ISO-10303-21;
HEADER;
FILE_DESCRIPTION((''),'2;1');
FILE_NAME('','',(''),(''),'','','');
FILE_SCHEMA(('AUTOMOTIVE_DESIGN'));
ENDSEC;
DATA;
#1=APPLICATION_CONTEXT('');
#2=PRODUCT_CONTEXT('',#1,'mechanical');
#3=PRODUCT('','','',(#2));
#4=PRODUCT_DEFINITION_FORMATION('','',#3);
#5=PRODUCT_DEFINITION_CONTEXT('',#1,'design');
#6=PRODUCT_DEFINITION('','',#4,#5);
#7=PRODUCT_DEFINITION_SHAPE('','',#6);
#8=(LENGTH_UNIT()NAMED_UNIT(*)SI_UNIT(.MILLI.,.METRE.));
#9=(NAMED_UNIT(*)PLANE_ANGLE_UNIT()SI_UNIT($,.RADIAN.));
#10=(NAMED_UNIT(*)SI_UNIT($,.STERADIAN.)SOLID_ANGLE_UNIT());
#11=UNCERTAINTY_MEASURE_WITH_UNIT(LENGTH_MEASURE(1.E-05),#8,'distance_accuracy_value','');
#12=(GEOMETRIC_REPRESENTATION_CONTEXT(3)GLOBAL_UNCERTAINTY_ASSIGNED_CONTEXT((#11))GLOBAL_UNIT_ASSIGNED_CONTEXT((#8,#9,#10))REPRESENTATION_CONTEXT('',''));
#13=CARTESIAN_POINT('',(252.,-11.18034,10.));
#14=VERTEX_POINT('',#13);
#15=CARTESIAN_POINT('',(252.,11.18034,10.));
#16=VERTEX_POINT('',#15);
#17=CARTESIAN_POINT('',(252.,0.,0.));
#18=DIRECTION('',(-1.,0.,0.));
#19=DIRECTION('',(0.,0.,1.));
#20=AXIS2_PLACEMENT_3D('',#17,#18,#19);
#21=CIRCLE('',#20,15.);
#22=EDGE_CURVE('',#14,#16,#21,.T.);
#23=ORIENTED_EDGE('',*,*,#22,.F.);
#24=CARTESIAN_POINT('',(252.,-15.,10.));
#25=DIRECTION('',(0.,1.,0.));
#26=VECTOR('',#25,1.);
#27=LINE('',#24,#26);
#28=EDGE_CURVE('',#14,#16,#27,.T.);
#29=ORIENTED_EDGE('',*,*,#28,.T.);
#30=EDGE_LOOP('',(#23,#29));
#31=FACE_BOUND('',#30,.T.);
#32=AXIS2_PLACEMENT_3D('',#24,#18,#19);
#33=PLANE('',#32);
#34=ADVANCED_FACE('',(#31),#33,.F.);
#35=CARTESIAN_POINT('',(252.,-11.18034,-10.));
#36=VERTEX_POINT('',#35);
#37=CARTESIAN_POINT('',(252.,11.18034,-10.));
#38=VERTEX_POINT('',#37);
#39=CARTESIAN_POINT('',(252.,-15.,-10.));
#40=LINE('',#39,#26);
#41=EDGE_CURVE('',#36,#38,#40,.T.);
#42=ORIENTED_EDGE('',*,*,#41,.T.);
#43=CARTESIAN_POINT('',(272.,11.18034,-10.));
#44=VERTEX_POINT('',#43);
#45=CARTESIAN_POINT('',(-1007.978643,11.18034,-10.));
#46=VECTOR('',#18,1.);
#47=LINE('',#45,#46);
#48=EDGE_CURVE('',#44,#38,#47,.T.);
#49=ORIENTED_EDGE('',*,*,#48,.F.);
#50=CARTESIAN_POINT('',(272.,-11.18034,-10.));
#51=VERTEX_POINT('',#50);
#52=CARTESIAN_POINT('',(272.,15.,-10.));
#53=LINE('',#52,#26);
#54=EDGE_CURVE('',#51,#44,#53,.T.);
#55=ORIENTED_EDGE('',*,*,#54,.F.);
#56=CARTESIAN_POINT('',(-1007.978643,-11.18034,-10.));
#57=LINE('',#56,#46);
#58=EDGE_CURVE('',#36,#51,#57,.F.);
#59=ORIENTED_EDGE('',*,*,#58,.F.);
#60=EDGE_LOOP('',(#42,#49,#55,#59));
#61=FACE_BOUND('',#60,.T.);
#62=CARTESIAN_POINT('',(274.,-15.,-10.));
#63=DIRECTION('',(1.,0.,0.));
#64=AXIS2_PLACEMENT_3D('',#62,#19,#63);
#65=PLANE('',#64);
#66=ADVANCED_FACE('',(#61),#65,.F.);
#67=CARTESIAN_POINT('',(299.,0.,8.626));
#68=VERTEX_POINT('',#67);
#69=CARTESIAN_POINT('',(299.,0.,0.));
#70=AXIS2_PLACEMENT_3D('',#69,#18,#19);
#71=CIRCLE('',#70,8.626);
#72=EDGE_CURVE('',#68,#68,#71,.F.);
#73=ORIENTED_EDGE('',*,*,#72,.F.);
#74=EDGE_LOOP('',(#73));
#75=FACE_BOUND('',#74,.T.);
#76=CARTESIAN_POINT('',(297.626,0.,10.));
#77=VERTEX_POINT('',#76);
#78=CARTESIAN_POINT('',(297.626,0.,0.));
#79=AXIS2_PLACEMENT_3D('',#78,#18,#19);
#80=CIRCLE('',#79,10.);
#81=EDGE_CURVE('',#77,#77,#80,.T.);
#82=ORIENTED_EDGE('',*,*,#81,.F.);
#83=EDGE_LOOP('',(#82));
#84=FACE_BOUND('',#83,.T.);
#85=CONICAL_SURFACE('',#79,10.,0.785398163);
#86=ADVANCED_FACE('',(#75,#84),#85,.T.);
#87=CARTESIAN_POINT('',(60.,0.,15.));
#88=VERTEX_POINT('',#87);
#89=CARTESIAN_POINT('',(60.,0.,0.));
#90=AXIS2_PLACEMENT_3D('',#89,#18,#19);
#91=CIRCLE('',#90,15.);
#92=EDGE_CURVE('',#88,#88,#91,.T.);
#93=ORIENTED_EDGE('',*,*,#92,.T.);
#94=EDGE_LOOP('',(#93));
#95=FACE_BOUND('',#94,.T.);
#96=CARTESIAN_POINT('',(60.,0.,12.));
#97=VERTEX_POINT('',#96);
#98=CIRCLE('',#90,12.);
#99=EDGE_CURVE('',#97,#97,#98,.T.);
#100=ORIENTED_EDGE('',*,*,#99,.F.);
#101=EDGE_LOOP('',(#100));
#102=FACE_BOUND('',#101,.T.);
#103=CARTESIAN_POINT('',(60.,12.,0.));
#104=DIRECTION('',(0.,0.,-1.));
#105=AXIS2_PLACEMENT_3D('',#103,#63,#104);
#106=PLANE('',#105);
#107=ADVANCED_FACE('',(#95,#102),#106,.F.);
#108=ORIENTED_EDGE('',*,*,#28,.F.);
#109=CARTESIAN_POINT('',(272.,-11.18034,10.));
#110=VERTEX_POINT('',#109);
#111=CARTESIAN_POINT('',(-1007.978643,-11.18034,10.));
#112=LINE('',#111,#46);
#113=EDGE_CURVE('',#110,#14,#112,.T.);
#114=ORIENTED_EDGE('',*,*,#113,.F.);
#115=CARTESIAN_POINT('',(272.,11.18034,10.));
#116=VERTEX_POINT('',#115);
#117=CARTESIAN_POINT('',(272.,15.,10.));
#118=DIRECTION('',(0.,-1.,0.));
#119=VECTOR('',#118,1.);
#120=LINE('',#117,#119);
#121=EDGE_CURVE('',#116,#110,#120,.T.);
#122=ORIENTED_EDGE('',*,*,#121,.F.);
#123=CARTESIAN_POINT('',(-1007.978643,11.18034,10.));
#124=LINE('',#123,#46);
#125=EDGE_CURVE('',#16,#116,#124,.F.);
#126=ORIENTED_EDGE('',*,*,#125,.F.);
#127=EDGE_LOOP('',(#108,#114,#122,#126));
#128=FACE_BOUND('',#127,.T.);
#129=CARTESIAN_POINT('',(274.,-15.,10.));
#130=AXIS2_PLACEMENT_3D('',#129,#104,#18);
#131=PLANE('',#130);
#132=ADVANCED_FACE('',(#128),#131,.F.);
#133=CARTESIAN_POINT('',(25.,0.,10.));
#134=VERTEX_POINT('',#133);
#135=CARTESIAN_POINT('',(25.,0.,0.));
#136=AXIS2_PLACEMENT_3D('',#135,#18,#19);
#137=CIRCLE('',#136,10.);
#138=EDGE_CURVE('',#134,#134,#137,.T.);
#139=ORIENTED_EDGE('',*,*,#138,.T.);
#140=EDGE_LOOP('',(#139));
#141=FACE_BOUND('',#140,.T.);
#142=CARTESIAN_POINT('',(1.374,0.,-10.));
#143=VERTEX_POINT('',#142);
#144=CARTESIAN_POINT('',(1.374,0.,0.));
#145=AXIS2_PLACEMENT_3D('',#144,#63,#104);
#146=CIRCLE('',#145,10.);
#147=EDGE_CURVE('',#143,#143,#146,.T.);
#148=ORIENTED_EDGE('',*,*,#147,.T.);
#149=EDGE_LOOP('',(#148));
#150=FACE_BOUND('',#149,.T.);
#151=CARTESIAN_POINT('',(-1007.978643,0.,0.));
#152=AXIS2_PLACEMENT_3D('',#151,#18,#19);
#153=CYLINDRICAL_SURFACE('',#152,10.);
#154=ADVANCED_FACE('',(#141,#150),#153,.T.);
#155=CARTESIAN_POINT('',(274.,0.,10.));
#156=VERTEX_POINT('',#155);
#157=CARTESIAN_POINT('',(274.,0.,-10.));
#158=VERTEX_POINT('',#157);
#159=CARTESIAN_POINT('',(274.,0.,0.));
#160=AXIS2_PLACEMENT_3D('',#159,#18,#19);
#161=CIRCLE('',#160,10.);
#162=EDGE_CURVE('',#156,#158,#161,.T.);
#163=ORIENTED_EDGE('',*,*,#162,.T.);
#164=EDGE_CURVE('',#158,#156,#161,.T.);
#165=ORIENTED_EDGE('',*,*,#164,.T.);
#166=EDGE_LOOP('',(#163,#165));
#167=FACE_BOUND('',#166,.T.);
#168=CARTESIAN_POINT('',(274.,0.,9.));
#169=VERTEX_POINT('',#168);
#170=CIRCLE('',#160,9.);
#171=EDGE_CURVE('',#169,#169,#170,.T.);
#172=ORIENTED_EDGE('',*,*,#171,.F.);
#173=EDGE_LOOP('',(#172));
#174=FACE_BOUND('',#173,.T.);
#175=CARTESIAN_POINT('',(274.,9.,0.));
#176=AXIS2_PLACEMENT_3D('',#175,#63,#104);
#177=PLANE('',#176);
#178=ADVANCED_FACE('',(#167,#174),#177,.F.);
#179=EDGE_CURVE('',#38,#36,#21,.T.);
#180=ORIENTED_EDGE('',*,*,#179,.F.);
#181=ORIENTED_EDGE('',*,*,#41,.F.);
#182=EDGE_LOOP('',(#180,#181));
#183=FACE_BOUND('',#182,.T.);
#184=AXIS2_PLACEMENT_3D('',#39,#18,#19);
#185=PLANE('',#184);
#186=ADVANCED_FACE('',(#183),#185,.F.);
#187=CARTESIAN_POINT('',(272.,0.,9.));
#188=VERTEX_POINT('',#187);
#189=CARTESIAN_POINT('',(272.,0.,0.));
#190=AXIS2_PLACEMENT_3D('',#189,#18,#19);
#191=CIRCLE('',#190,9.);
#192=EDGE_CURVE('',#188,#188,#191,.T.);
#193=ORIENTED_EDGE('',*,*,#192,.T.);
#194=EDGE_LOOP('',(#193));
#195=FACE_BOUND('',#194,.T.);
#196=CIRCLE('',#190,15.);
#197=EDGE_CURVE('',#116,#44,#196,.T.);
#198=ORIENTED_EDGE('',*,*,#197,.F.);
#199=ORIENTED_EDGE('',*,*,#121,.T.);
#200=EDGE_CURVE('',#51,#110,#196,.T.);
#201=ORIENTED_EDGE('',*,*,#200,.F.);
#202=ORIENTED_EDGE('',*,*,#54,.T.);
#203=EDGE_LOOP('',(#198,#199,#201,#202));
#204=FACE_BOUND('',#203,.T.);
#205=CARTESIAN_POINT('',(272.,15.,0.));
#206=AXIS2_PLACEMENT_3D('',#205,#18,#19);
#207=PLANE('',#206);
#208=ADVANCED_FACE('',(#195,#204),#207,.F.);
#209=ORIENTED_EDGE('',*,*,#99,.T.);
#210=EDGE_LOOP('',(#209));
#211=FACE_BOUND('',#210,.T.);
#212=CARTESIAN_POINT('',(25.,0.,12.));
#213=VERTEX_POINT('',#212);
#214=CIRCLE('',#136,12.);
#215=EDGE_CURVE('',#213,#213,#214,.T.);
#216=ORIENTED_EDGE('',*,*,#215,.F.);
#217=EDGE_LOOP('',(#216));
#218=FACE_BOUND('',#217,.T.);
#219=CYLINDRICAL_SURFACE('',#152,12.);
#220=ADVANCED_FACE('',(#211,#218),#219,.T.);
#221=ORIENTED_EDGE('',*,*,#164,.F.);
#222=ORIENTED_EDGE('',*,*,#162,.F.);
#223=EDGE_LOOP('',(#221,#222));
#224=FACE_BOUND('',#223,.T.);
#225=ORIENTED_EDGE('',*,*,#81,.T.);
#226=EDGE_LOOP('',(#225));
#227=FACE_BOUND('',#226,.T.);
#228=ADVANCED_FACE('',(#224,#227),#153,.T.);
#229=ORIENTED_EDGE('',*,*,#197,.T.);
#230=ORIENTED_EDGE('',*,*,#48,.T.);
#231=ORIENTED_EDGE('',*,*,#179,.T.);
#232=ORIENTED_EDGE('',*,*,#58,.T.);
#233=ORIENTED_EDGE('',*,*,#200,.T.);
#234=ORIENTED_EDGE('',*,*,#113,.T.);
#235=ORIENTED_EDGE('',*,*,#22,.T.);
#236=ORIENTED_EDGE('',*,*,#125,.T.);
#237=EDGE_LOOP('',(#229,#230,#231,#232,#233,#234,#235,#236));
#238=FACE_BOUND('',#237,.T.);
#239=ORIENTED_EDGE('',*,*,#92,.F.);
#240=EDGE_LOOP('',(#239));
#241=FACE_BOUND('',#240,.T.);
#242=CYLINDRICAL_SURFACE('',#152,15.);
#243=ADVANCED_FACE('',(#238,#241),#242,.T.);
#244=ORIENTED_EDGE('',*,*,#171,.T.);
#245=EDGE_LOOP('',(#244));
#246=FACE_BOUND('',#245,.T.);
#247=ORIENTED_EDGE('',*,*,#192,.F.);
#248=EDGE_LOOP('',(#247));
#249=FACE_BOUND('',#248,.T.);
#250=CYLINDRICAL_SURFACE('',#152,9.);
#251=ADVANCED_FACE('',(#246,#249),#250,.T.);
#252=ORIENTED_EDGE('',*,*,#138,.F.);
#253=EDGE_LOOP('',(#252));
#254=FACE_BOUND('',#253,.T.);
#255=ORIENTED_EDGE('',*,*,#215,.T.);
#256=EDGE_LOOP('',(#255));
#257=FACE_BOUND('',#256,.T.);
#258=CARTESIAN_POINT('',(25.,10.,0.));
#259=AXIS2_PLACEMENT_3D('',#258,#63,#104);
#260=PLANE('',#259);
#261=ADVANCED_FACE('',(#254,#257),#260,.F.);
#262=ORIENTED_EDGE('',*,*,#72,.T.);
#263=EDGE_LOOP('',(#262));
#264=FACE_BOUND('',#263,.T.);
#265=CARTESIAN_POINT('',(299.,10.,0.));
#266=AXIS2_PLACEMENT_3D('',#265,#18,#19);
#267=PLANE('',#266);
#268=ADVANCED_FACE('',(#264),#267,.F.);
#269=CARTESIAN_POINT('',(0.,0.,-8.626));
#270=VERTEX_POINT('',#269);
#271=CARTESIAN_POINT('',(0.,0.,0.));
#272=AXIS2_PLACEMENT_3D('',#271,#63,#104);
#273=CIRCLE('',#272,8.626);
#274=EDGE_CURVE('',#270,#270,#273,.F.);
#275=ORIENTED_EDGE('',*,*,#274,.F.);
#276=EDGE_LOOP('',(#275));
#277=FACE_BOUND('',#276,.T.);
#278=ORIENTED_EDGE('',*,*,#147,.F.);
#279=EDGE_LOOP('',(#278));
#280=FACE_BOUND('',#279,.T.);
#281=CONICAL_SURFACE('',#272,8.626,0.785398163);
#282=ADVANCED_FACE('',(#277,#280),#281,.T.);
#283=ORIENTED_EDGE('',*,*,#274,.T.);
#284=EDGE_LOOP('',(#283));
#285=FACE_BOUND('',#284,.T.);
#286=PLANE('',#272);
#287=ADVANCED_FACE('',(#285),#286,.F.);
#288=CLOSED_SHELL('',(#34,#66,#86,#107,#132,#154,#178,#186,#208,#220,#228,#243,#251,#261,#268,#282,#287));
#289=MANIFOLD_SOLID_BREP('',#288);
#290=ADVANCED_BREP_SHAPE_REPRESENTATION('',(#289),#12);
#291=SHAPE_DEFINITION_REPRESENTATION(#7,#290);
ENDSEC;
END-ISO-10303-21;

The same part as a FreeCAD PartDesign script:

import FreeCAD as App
import Part
import Sketcher
from FreeCAD import Vector
Q = App.Units.Quantity


def edges_at(feature, points):
    """Names of the edges that pass closest to the given points."""
    edges = feature.Shape.Edges
    near = lambda p: min(range(len(edges)), key=lambda i: edges[i].distToShape(Part.Vertex(*p))[0])
    return sorted({f"Edge{near(p) + 1}" for p in points})

doc = App.newDocument("Part")
params = doc.addObject("Spreadsheet::Sheet", "Params")
for row, (alias, value) in enumerate([
    ("sketch1_width", "299 mm"),
    ("sketch1_width2", "25 mm"),
    ("sketch1_width3", "2 mm"),
    ("sketch1_width4", "212 mm"),
    ("sketch1_height", "10 mm"),
    ("revolution_angle", "360 deg"),
    ("chamfer_size", "1.374 mm"),
    ("sketch2_width", "22 mm"),
    ("sketch2_height", "5 mm"),
    ("pocket1_length", "30 mm"),
], start=1):
    params.set(f"A{row}", alias)
    params.set(f"B{row}", "=" + value)
    params.setAlias(f"B{row}", alias)

body = doc.addObject("PartDesign::Body", "Body")

# Sketch on XY plane
sketch1 = body.newObject("Sketcher::SketchObject", "Sketch")
sketch1.AttachmentSupport = (doc.getObject("XY_Plane"), [""])
sketch1.MapMode = "FlatFace"
sketch1.addGeometry([
    Part.LineSegment(Vector(0, 0, 0), Vector(299, 0, 0)),  # 0
    Part.LineSegment(Vector(299, 0, 0), Vector(299, 10, 0)),  # 1
    Part.LineSegment(Vector(299, 10, 0), Vector(274, 10, 0)),  # 2
    Part.LineSegment(Vector(274, 10, 0), Vector(274, 9, 0)),  # 3
    Part.LineSegment(Vector(274, 9, 0), Vector(272, 9, 0)),  # 4
    Part.LineSegment(Vector(272, 9, 0), Vector(272, 15, 0)),  # 5
    Part.LineSegment(Vector(272, 15, 0), Vector(60, 15, 0)),  # 6
    Part.LineSegment(Vector(60, 15, 0), Vector(60, 12, 0)),  # 7
    Part.LineSegment(Vector(60, 12, 0), Vector(25, 12, 0)),  # 8
    Part.LineSegment(Vector(25, 12, 0), Vector(25, 10, 0)),  # 9
    Part.LineSegment(Vector(25, 10, 0), Vector(0, 10, 0)),  # 10
    Part.LineSegment(Vector(0, 10, 0), Vector(0, 0, 0)),  # 11
], False)
sketch1.addConstraint([
    Sketcher.Constraint("Coincident", 0, 2, 1, 1),
    Sketcher.Constraint("Coincident", 1, 2, 2, 1),
    Sketcher.Constraint("Coincident", 2, 2, 3, 1),
    Sketcher.Constraint("Coincident", 3, 2, 4, 1),
    Sketcher.Constraint("Coincident", 4, 2, 5, 1),
    Sketcher.Constraint("Coincident", 5, 2, 6, 1),
    Sketcher.Constraint("Coincident", 6, 2, 7, 1),
    Sketcher.Constraint("Coincident", 7, 2, 8, 1),
    Sketcher.Constraint("Coincident", 8, 2, 9, 1),
    Sketcher.Constraint("Coincident", 9, 2, 10, 1),
    Sketcher.Constraint("Coincident", 10, 2, 11, 1),
    Sketcher.Constraint("Coincident", 11, 2, 0, 1),
    Sketcher.Constraint("Horizontal", 0),
    Sketcher.Constraint("Vertical", 1),
    Sketcher.Constraint("Horizontal", 2),
    Sketcher.Constraint("Vertical", 3),
    Sketcher.Constraint("Horizontal", 4),
    Sketcher.Constraint("Vertical", 5),
    Sketcher.Constraint("Horizontal", 6),
    Sketcher.Constraint("Vertical", 7),
    Sketcher.Constraint("Horizontal", 8),
    Sketcher.Constraint("Vertical", 9),
    Sketcher.Constraint("Horizontal", 10),
    Sketcher.Constraint("Vertical", 11),
    Sketcher.Constraint("Coincident", 11, 2, -1, 1),
    Sketcher.Constraint("Horizontal", 2, 2, 9, 2),
    Sketcher.Constraint("Equal", 2, 10),
    Sketcher.Constraint("Equal", 4, 9),
    Sketcher.Constraint("DistanceX", 0, 1, 0, 2, Q("299 mm")),
    Sketcher.Constraint("DistanceX", 2, 2, 2, 1, Q("25 mm")),
    Sketcher.Constraint("DistanceX", 4, 2, 4, 1, Q("2 mm")),
    Sketcher.Constraint("DistanceX", 6, 2, 6, 1, Q("212 mm")),
    Sketcher.Constraint("DistanceY", 1, 1, 1, 2, Q("10 mm")),
    Sketcher.Constraint("DistanceY", 3, 2, 3, 1, Q("1 mm")),
    Sketcher.Constraint("DistanceY", 5, 1, 5, 2, Q("6 mm")),
])
sketch1.setExpression("Constraints[28]", "Params.sketch1_width")
sketch1.setExpression("Constraints[29]", "Params.sketch1_width2")
sketch1.setExpression("Constraints[30]", "Params.sketch1_width3")
sketch1.setExpression("Constraints[31]", "Params.sketch1_width4")
sketch1.setExpression("Constraints[32]", "Params.sketch1_height")
revolution = body.newObject("PartDesign::Revolution", "Revolution")
revolution.Profile = sketch1
revolution.ReferenceAxis = (sketch1, ["H_Axis"])
revolution.setExpression("Angle", "Params.revolution_angle")
doc.recompute()

chamfer = body.newObject("PartDesign::Chamfer", "Chamfer")
chamfer.Base = (revolution, edges_at(revolution, [(0, 0, -10), (299, 0, -10)]))
chamfer.setExpression("Size", "Params.chamfer_size")

# Sketch on XZ plane
sketch2 = body.newObject("Sketcher::SketchObject", "Sketch001")
sketch2.AttachmentSupport = (doc.getObject("XZ_Plane"), [""])
sketch2.MapMode = "FlatFace"
sketch2.addGeometry([
    Part.LineSegment(Vector(252, -15, 0), Vector(252, -10, 0)),  # 0
    Part.LineSegment(Vector(252, -10, 0), Vector(274, -10, 0)),  # 1
    Part.LineSegment(Vector(274, -10, 0), Vector(274, -15, 0)),  # 2
    Part.LineSegment(Vector(274, -15, 0), Vector(252, -15, 0)),  # 3
    Part.LineSegment(Vector(252, 10, 0), Vector(252, 15, 0)),  # 4
    Part.LineSegment(Vector(252, 15, 0), Vector(274, 15, 0)),  # 5
    Part.LineSegment(Vector(274, 15, 0), Vector(274, 10, 0)),  # 6
    Part.LineSegment(Vector(274, 10, 0), Vector(252, 10, 0)),  # 7
], False)
sketch2.addConstraint([
    Sketcher.Constraint("Coincident", 0, 2, 1, 1),
    Sketcher.Constraint("Coincident", 1, 2, 2, 1),
    Sketcher.Constraint("Coincident", 2, 2, 3, 1),
    Sketcher.Constraint("Coincident", 3, 2, 0, 1),
    Sketcher.Constraint("Coincident", 4, 2, 5, 1),
    Sketcher.Constraint("Coincident", 5, 2, 6, 1),
    Sketcher.Constraint("Coincident", 6, 2, 7, 1),
    Sketcher.Constraint("Coincident", 7, 2, 4, 1),
    Sketcher.Constraint("Vertical", 0),
    Sketcher.Constraint("Horizontal", 1),
    Sketcher.Constraint("Vertical", 2),
    Sketcher.Constraint("Horizontal", 3),
    Sketcher.Constraint("Vertical", 4),
    Sketcher.Constraint("Horizontal", 5),
    Sketcher.Constraint("Vertical", 6),
    Sketcher.Constraint("Horizontal", 7),
    Sketcher.Constraint("Symmetric", 3, 2, 4, 2, -1),
    Sketcher.Constraint("Symmetric", 1, 2, 6, 2, -1),
    Sketcher.Constraint("DistanceX", 1, 1, 1, 2, Q("22 mm")),
    Sketcher.Constraint("DistanceY", 0, 1, 0, 2, Q("5 mm")),
    Sketcher.Constraint("DistanceX", -1, 1, 0, 2, Q("252 mm")),
    Sketcher.Constraint("DistanceY", 0, 2, -1, 1, Q("10 mm")),
])
sketch2.setExpression("Constraints[18]", "Params.sketch2_width")
sketch2.setExpression("Constraints[19]", "Params.sketch2_height")
pocket1 = body.newObject("PartDesign::Pocket", "Pocket")
pocket1.Profile = sketch2
pocket1.setExpression("Length", "Params.pocket1_length")
pocket1.Midplane = True

doc.recompute()
